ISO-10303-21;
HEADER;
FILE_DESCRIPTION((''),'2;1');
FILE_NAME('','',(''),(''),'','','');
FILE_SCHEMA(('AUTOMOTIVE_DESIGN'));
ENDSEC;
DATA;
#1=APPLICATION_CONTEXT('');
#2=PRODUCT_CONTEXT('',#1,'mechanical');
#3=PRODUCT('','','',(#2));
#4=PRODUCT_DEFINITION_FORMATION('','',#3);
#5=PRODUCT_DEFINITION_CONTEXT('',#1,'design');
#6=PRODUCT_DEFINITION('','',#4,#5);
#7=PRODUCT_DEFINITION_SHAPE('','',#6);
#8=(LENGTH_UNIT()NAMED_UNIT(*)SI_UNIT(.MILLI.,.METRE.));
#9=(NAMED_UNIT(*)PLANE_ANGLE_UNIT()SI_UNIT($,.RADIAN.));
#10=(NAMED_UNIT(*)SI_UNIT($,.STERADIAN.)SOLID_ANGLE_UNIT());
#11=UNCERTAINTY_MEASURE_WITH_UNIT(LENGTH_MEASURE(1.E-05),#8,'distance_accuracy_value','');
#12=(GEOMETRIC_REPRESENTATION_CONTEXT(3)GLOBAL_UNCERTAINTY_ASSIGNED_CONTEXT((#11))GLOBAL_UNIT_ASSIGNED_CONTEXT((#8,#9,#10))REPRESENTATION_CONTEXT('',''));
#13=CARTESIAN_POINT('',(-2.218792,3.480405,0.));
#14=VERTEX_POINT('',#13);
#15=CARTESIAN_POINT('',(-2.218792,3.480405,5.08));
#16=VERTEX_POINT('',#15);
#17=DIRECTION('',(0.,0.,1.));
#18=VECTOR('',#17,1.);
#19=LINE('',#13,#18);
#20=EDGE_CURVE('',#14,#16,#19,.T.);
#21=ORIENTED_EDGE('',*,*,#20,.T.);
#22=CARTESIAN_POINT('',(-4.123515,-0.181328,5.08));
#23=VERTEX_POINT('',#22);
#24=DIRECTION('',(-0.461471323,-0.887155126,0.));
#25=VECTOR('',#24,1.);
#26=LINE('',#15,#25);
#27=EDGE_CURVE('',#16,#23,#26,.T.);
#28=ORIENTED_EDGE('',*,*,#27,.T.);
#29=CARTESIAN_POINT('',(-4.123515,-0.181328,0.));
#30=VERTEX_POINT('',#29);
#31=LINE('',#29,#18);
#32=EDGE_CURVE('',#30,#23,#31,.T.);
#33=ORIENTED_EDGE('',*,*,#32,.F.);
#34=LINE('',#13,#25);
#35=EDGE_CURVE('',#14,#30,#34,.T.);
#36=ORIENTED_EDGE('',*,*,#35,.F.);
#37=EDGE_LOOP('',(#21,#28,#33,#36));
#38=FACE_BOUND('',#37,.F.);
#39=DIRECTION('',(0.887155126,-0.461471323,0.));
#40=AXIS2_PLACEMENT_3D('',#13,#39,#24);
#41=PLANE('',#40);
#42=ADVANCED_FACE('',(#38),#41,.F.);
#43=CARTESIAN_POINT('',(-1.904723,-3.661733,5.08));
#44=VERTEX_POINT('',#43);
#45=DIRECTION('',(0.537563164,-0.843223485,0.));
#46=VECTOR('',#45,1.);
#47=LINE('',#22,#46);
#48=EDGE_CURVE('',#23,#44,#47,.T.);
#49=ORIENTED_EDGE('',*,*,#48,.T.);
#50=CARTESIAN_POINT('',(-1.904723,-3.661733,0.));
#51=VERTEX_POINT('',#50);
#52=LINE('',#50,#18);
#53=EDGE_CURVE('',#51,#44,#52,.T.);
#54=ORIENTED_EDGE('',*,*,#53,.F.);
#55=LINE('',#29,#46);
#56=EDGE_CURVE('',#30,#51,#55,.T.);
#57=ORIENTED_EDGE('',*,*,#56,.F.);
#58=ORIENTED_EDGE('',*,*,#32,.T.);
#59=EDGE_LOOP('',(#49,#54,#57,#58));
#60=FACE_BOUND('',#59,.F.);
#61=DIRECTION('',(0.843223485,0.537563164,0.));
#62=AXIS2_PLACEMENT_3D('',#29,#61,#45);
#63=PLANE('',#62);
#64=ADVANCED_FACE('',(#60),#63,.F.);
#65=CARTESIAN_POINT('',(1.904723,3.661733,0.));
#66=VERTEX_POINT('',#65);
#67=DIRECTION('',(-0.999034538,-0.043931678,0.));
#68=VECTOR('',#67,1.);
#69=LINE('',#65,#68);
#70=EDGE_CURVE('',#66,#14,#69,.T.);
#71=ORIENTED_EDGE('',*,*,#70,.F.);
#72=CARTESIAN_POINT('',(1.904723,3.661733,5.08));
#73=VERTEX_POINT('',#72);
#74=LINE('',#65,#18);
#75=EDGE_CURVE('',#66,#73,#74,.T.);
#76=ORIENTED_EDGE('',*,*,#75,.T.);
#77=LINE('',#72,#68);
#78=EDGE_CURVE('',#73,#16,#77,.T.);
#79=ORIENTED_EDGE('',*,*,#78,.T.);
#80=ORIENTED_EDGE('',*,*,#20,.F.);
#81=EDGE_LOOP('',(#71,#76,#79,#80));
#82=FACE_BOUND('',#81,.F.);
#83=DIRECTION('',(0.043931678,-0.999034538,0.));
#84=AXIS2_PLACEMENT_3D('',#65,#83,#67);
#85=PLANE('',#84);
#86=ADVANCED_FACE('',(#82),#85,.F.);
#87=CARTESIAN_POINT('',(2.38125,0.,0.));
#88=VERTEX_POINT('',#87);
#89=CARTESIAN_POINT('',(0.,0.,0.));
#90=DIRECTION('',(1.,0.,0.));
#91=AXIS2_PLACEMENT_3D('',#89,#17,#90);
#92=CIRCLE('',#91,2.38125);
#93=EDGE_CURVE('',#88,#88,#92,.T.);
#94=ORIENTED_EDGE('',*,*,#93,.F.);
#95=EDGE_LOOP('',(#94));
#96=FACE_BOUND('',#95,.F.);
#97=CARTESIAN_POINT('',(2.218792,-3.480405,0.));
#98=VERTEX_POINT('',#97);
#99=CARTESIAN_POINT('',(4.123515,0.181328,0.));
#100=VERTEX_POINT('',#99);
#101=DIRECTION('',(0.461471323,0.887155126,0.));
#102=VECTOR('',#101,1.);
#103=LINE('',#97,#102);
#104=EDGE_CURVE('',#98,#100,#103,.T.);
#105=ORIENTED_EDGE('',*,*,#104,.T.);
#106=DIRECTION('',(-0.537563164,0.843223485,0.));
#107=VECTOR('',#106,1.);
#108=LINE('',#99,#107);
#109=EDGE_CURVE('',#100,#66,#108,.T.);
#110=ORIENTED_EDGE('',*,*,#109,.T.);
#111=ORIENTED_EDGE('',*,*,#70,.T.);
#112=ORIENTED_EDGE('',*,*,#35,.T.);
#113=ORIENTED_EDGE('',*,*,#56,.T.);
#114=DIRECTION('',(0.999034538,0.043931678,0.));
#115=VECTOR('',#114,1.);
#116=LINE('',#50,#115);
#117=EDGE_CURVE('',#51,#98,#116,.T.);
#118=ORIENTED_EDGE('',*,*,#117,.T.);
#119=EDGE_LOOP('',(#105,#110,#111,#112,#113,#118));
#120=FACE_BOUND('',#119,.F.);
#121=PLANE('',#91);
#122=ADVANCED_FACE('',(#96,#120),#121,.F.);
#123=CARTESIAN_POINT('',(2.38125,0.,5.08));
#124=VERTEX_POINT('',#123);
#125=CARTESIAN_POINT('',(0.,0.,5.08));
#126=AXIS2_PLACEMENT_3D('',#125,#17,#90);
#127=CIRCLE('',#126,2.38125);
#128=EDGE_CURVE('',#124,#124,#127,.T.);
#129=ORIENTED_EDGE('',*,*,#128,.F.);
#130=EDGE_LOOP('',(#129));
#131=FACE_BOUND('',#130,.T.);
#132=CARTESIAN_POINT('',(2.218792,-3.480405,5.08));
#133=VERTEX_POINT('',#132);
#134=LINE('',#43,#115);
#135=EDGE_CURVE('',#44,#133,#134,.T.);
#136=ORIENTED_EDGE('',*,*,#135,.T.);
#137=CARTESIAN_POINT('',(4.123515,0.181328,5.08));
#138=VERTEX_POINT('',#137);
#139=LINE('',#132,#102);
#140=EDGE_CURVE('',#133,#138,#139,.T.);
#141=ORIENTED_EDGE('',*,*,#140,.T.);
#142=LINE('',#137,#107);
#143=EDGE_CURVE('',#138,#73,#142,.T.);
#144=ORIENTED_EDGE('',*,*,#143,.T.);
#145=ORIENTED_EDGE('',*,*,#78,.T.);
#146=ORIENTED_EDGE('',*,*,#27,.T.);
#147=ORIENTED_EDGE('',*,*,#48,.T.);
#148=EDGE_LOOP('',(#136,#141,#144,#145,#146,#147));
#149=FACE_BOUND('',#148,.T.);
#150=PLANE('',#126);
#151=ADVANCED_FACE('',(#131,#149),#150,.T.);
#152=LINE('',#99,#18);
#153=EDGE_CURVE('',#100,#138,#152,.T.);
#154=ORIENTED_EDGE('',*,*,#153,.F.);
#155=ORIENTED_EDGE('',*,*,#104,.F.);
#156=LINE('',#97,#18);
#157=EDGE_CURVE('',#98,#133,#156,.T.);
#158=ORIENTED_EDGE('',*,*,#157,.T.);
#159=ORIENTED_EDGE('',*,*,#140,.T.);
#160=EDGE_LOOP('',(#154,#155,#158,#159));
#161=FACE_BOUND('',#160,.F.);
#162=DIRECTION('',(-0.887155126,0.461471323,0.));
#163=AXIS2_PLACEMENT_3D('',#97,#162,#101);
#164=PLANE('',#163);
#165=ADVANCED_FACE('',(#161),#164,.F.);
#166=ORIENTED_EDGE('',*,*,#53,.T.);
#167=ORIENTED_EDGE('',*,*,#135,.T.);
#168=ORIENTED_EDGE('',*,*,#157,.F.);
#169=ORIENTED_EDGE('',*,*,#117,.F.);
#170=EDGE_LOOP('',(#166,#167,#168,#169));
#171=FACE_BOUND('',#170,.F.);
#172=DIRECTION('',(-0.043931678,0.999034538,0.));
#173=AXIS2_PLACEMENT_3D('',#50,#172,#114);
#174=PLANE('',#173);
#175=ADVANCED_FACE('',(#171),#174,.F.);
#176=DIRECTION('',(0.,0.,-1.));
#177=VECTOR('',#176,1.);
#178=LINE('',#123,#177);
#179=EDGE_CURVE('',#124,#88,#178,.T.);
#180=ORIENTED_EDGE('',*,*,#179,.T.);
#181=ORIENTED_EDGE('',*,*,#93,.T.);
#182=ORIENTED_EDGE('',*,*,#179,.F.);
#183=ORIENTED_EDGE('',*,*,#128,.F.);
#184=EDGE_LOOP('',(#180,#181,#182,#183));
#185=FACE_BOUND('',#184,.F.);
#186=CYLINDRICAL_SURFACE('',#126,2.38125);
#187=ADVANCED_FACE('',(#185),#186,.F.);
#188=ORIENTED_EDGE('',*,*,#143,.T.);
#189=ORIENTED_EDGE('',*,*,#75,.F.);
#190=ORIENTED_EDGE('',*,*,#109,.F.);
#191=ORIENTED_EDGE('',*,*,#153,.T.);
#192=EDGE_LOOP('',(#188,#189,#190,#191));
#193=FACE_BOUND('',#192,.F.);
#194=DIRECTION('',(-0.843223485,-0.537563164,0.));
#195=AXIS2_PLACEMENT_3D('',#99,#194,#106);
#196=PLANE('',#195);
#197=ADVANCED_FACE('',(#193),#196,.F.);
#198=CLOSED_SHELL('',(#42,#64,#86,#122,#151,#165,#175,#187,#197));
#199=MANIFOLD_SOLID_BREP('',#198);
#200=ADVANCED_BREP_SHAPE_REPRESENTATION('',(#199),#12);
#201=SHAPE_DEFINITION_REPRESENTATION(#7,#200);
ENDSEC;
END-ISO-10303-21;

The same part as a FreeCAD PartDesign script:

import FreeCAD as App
import Part
import Sketcher
Q = App.Units.Quantity

doc = App.newDocument("Part")
body = doc.addObject("PartDesign::Body", "Body")

sketch1 = body.newObject("Sketcher::SketchObject", "Sketch")
sketch1.AttachmentSupport = (doc.getObject("XY_Plane"), [""])
sketch1.MapMode = "FlatFace"
sketch1.addGeometry([
    Part.LineSegment(App.Vector(4.1, 0.2, 0), App.Vector(1.9, 3.7, 0)),
    Part.LineSegment(App.Vector(1.9, 3.7, 0), App.Vector(-2.2, 3.5, 0)),
    Part.LineSegment(App.Vector(-2.2, 3.5, 0), App.Vector(-4.1, -0.2, 0)),
    Part.LineSegment(App.Vector(-4.1, -0.2, 0), App.Vector(-1.9, -3.7, 0)),
    Part.LineSegment(App.Vector(-1.9, -3.7, 0), App.Vector(2.2, -3.5, 0)),
    Part.LineSegment(App.Vector(2.2, -3.5, 0), App.Vector(4.1, 0.2, 0)),
], False)
sketch1.addConstraint([
    Sketcher.Constraint("Coincident", 0, 2, 1, 1),
    Sketcher.Constraint("Coincident", 1, 2, 2, 1),
    Sketcher.Constraint("Coincident", 2, 2, 3, 1),
    Sketcher.Constraint("Coincident", 3, 2, 4, 1),
    Sketcher.Constraint("Coincident", 4, 2, 5, 1),
    Sketcher.Constraint("Coincident", 5, 2, 0, 1),
    Sketcher.Constraint("Symmetric", 0, 2, 3, 2, -1, 1),
    Sketcher.Constraint("Symmetric", 1, 2, 4, 2, -1, 1),
    Sketcher.Constraint("Symmetric", 2, 2, 5, 2, -1, 1),
    Sketcher.Constraint("Equal", 0, 1),
    Sketcher.Constraint("Equal", 1, 2),
    Sketcher.Constraint("Distance", 0, Q("0.1625 in")),
    Sketcher.Constraint("DistanceY", 2, 2, 0, 2, 3.843061),
    Sketcher.Constraint("DistanceX", 1, 2, 3, 2, 0.314069),
    Sketcher.Constraint("DistanceY", 4, 2, 1, 2, 6.96081),
])
pad1 = body.newObject("PartDesign::Pad", "Pad")
pad1.Profile = sketch1
pad1.Length = Q("0.2 in")

sketch2 = body.newObject("Sketcher::SketchObject", "Sketch001")
sketch2.AttachmentSupport = (doc.getObject("XY_Plane"), [""])
sketch2.MapMode = "FlatFace"
sketch2.AttachmentOffset = App.Placement(App.Vector(0, 0, 0.2 * 25.4), App.Rotation())
sketch2.addGeometry(Part.Circle(App.Vector(0, 0, 0), App.Vector(0, 0, 1), 2.4), False)
sketch2.addConstraint([
    Sketcher.Constraint("Coincident", 0, 3, -1, 1),
    Sketcher.Constraint("Diameter", 0, Q("0.1875 in")),
])
pocket1 = body.newObject("PartDesign::Pocket", "Pocket")
pocket1.Profile = sketch2
pocket1.Type = "ThroughAll"

doc.recompute()
